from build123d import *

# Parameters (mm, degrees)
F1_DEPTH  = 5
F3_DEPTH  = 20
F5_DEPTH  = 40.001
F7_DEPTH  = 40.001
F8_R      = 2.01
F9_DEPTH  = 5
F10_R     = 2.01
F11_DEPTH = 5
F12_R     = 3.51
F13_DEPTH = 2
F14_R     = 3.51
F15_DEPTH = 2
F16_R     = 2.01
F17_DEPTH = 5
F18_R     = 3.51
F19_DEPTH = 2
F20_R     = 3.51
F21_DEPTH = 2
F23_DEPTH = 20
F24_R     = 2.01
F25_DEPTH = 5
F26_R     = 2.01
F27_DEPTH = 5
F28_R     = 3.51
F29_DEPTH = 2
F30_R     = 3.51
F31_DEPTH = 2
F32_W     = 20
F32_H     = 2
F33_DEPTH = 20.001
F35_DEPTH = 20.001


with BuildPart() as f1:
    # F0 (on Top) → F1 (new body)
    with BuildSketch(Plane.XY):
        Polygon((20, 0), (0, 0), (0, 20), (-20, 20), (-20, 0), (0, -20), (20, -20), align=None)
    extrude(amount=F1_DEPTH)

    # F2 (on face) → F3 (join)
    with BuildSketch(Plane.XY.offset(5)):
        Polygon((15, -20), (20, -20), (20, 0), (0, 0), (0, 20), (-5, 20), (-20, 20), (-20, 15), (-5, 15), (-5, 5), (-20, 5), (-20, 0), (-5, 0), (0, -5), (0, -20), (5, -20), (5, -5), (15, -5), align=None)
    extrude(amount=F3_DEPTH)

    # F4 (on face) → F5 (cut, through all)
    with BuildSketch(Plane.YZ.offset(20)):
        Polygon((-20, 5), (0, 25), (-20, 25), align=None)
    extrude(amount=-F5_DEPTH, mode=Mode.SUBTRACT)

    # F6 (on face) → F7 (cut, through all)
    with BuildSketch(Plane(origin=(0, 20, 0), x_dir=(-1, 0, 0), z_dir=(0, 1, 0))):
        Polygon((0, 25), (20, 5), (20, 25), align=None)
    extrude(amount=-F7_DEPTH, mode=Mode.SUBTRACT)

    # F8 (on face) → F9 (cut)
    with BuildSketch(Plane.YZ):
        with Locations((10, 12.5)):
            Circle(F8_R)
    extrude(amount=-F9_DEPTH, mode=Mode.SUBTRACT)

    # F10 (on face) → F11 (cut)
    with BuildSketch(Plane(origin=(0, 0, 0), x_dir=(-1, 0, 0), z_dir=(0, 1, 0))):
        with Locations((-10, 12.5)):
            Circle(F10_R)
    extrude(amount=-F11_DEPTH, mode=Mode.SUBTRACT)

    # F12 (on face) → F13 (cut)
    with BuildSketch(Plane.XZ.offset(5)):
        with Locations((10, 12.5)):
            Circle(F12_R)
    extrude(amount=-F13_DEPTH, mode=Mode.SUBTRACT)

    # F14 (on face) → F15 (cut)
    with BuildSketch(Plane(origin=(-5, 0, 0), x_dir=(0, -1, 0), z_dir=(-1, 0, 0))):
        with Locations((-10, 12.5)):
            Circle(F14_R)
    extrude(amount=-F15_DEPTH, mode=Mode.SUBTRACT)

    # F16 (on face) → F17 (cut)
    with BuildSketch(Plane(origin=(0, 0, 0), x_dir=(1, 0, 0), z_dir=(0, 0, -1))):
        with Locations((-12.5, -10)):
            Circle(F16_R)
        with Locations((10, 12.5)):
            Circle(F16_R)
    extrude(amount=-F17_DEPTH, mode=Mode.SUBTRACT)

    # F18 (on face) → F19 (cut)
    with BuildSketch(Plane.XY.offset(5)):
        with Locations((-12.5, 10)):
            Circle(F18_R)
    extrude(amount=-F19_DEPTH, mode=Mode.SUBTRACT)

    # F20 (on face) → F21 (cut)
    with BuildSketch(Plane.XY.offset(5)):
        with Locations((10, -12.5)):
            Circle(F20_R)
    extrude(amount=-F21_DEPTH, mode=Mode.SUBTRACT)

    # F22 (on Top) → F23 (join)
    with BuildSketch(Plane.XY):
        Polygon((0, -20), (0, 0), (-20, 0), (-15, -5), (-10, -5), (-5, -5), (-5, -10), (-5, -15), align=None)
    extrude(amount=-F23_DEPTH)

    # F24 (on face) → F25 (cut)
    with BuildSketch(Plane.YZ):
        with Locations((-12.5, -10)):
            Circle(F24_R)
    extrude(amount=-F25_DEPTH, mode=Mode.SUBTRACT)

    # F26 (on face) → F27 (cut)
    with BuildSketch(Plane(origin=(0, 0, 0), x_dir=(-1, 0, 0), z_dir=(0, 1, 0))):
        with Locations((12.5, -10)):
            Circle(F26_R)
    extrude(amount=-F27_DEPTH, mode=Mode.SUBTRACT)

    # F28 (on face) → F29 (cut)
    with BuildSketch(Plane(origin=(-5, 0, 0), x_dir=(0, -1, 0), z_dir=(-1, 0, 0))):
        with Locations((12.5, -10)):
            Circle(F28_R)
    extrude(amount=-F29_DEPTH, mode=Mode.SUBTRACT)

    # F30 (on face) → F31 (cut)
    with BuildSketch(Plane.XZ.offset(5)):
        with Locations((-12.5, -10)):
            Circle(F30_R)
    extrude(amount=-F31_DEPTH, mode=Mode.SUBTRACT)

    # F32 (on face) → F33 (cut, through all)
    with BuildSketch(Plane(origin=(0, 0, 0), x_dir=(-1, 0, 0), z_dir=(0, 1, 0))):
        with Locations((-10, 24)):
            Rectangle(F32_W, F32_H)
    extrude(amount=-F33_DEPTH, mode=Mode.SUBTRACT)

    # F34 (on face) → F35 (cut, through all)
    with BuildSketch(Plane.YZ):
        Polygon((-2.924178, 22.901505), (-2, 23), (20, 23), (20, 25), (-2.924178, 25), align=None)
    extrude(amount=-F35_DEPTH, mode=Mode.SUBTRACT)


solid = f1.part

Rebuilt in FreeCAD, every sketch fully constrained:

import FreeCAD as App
import Part
import Sketcher

doc = App.newDocument("Part")
params = doc.addObject("Spreadsheet::Sheet", "Params")
for row, (alias, value) in enumerate([
    ("sketch1_width", "20 mm"),
    ("pad1_length", "5 mm"),
    ("sketch2_width", "5 mm"),
    ("sketch2_width2", "20 mm"),
    ("pad2_length", "20 mm"),
    ("sketch3_width", "20 mm"),
    ("sketch4_width", "20 mm"),
    ("sketch5_diameter", "4.02 mm"),
    ("pocket3_length", "5 mm"),
    ("sketch6_diameter", "4.02 mm"),
    ("pocket4_length", "5 mm"),
    ("sketch7_diameter", "7.02 mm"),
    ("pocket5_length", "2 mm"),
    ("sketch8_diameter", "7.02 mm"),
    ("pocket6_length", "2 mm"),
    ("sketch9_diameter", "4.02 mm"),
    ("pocket7_length", "5 mm"),
    ("sketch10_diameter", "7.02 mm"),
    ("pocket8_length", "2 mm"),
    ("sketch11_diameter", "7.02 mm"),
    ("pocket9_length", "2 mm"),
    ("sketch12_width", "20 mm"),
    ("sketch12_width2", "10 mm"),
    ("pad3_length", "20 mm"),
    ("sketch13_diameter", "4.02 mm"),
    ("pocket10_length", "5 mm"),
    ("sketch14_diameter", "4.02 mm"),
    ("pocket11_length", "5 mm"),
    ("sketch15_diameter", "7.02 mm"),
    ("pocket12_length", "2 mm"),
    ("sketch16_diameter", "7.02 mm"),
    ("pocket13_length", "2 mm"),
    ("sketch17_width", "20 mm"),
    ("sketch17_height", "2 mm"),
    ("sketch18_width", "22 mm"),
    ("sketch18_height", "2 mm"),
], start=1):
    params.set(f"A{row}", alias)
    params.set(f"B{row}", "=" + value)
    params.setAlias(f"B{row}", alias)

body = doc.addObject("PartDesign::Body", "Body")

# Sketch on XY plane
sketch1 = body.newObject("Sketcher::SketchObject", "Sketch")
sketch1.AttachmentSupport = (doc.getObject("XY_Plane"), [""])
sketch1.MapMode = "FlatFace"
sketch1.addGeometry([
    Part.LineSegment(App.Vector(20, 0, 0), App.Vector(0, 0, 0)),  # 0
    Part.LineSegment(App.Vector(0, 0, 0), App.Vector(0, 20, 0)),  # 1
    Part.LineSegment(App.Vector(0, 20, 0), App.Vector(-20, 20, 0)),  # 2
    Part.LineSegment(App.Vector(-20, 20, 0), App.Vector(-20, 0, 0)),  # 3
    Part.LineSegment(App.Vector(-20, 0, 0), App.Vector(0, -20, 0)),  # 4
    Part.LineSegment(App.Vector(0, -20, 0), App.Vector(20, -20, 0)),  # 5
    Part.LineSegment(App.Vector(20, -20, 0), App.Vector(20, 0, 0)),  # 6
], False)
sketch1.addConstraint([
    Sketcher.Constraint("Coincident", 0, 2, 1, 1),
    Sketcher.Constraint("Coincident", 1, 2, 2, 1),
    Sketcher.Constraint("Coincident", 2, 2, 3, 1),
    Sketcher.Constraint("Coincident", 3, 2, 4, 1),
    Sketcher.Constraint("Coincident", 4, 2, 5, 1),
    Sketcher.Constraint("Coincident", 5, 2, 6, 1),
    Sketcher.Constraint("Coincident", 6, 2, 0, 1),
    Sketcher.Constraint("Horizontal", 0),
    Sketcher.Constraint("Vertical", 1),
    Sketcher.Constraint("Horizontal", 2),
    Sketcher.Constraint("Vertical", 3),
    Sketcher.Constraint("Horizontal", 5),
    Sketcher.Constraint("Vertical", 6),
    Sketcher.Constraint("Coincident", 0, 2, -1, 1),
    Sketcher.Constraint("Symmetric", 1, 2, 4, 2, -1, 1),
    Sketcher.Constraint("Symmetric", 3, 2, 6, 2, -1, 1),
    Sketcher.Constraint("Equal", 5, 1),
    Sketcher.Constraint("DistanceX", 0, 2, 0, 1, 20.0),
])
sketch1.setExpression("Constraints[17]", "Params.sketch1_width")
pad1 = body.newObject("PartDesign::Pad", "Pad")
pad1.Profile = sketch1
pad1.setExpression("Length", "Params.pad1_length")

# Sketch on XY plane
sketch2 = body.newObject("Sketcher::SketchObject", "Sketch001")
sketch2.AttachmentSupport = (doc.getObject("XY_Plane"), [""])
sketch2.MapMode = "FlatFace"
sketch2.AttachmentOffset = App.Placement(App.Vector(0, 0, 5), App.Rotation())
sketch2.addGeometry([
    Part.LineSegment(App.Vector(15, -20, 0), App.Vector(20, -20, 0)),  # 0
    Part.LineSegment(App.Vector(20, -20, 0), App.Vector(20, 0, 0)),  # 1
    Part.LineSegment(App.Vector(20, 0, 0), App.Vector(0, 0, 0)),  # 2
    Part.LineSegment(App.Vector(0, 0, 0), App.Vector(0, 20, 0)),  # 3
    Part.LineSegment(App.Vector(0, 20, 0), App.Vector(-20, 20, 0)),  # 4
    Part.LineSegment(App.Vector(-20, 20, 0), App.Vector(-20, 15, 0)),  # 5
    Part.LineSegment(App.Vector(-20, 15, 0), App.Vector(-5, 15, 0)),  # 6
    Part.LineSegment(App.Vector(-5, 15, 0), App.Vector(-5, 5, 0)),  # 7
    Part.LineSegment(App.Vector(-5, 5, 0), App.Vector(-20, 5, 0)),  # 8
    Part.LineSegment(App.Vector(-20, 5, 0), App.Vector(-20, 0, 0)),  # 9
    Part.LineSegment(App.Vector(-20, 0, 0), App.Vector(-5, 0, 0)),  # 10
    Part.LineSegment(App.Vector(-5, 0, 0), App.Vector(0, -5, 0)),  # 11
    Part.LineSegment(App.Vector(0, -5, 0), App.Vector(0, -20, 0)),  # 12
    Part.LineSegment(App.Vector(0, -20, 0), App.Vector(5, -20, 0)),  # 13
    Part.LineSegment(App.Vector(5, -20, 0), App.Vector(5, -5, 0)),  # 14
    Part.LineSegment(App.Vector(5, -5, 0), App.Vector(15, -5, 0)),  # 15
    Part.LineSegment(App.Vector(15, -5, 0), App.Vector(15, -20, 0)),  # 16
], False)
sketch2.addConstraint([
    Sketcher.Constraint("Coincident", 0, 2, 1, 1),
    Sketcher.Constraint("Coincident", 1, 2, 2, 1),
    Sketcher.Constraint("Coincident", 2, 2, 3, 1),
    Sketcher.Constraint("Coincident", 3, 2, 4, 1),
    Sketcher.Constraint("Coincident", 4, 2, 5, 1),
    Sketcher.Constraint("Coincident", 5, 2, 6, 1),
    Sketcher.Constraint("Coincident", 6, 2, 7, 1),
    Sketcher.Constraint("Coincident", 7, 2, 8, 1),
    Sketcher.Constraint("Coincident", 8, 2, 9, 1),
    Sketcher.Constraint("Coincident", 9, 2, 10, 1),
    Sketcher.Constraint("Coincident", 10, 2, 11, 1),
    Sketcher.Constraint("Coincident", 11, 2, 12, 1),
    Sketcher.Constraint("Coincident", 12, 2, 13, 1),
    Sketcher.Constraint("Coincident", 13, 2, 14, 1),
    Sketcher.Constraint("Coincident", 14, 2, 15, 1),
    Sketcher.Constraint("Coincident", 15, 2, 16, 1),
    Sketcher.Constraint("Coincident", 16, 2, 0, 1),
    Sketcher.Constraint("Horizontal", 0),
    Sketcher.Constraint("Vertical", 1),
    Sketcher.Constraint("Horizontal", 2),
    Sketcher.Constraint("Vertical", 3),
    Sketcher.Constraint("Horizontal", 4),
    Sketcher.Constraint("Vertical", 5),
    Sketcher.Constraint("Horizontal", 6),
    Sketcher.Constraint("Vertical", 7),
    Sketcher.Constraint("Horizontal", 8),
    Sketcher.Constraint("Vertical", 9),
    Sketcher.Constraint("Horizontal", 10),
    Sketcher.Constraint("Vertical", 12),
    Sketcher.Constraint("Horizontal", 13),
    Sketcher.Constraint("Vertical", 14),
    Sketcher.Constraint("Horizontal", 15),
    Sketcher.Constraint("Vertical", 16),
    Sketcher.Constraint("Coincident", 2, 2, -1, 1),
    Sketcher.Constraint("Symmetric", 0, 2, 4, 2, -1, 1),
    Sketcher.Constraint("Symmetric", 1, 2, 9, 2, -1, 1),
    Sketcher.Constraint("Symmetric", 3, 2, 12, 2, -1, 1),
    Sketcher.Constraint("Symmetric", 7, 2, 14, 2, -1, 1),
    Sketcher.Constraint("Horizontal", 11, 2, 14, 2),
    Sketcher.Constraint("Vertical", 7, 2, 10, 2),
    Sketcher.Constraint("Equal", 0, 13),
    Sketcher.Constraint("Equal", 4, 1),
    Sketcher.Constraint("Equal", 13, 5),
    Sketcher.Constraint("Equal", 15, 7),
    Sketcher.Constraint("DistanceX", 0, 1, 0, 2, 5.0),
    Sketcher.Constraint("DistanceX", 2, 2, 2, 1, 20.0),
])
sketch2.setExpression("Constraints[44]", "Params.sketch2_width")
sketch2.setExpression("Constraints[45]", "Params.sketch2_width2")
pad2 = body.newObject("PartDesign::Pad", "Pad001")
pad2.Profile = sketch2
pad2.setExpression("Length", "Params.pad2_length")

# Sketch on YZ plane
sketch3 = body.newObject("Sketcher::SketchObject", "Sketch002")
sketch3.AttachmentSupport = (doc.getObject("YZ_Plane"), [""])
sketch3.MapMode = "FlatFace"
sketch3.AttachmentOffset = App.Placement(App.Vector(0, 0, 20), App.Rotation())
sketch3.addGeometry([
    Part.LineSegment(App.Vector(-20, 5, 0), App.Vector(0, 25, 0)),
    Part.LineSegment(App.Vector(0, 25, 0), App.Vector(-20, 25, 0)),
    Part.LineSegment(App.Vector(-20, 25, 0), App.Vector(-20, 5, 0)),
], False)
sketch3.addConstraint([
    Sketcher.Constraint("Coincident", 0, 2, 1, 1),
    Sketcher.Constraint("Coincident", 1, 2, 2, 1),
    Sketcher.Constraint("Coincident", 2, 2, 0, 1),
    Sketcher.Constraint("Horizontal", 1),
    Sketcher.Constraint("Vertical", 2),
    Sketcher.Constraint("PointOnObject", 0, 2, -2),
    Sketcher.Constraint("Equal", 1, 2),
    Sketcher.Constraint("DistanceX", 1, 2, 1, 1, 20.0),
    Sketcher.Constraint("DistanceY", -1, 1, 0, 2, 25.0),
])
sketch3.setExpression("Constraints[7]", "Params.sketch3_width")
pocket1 = body.newObject("PartDesign::Pocket", "Pocket")
pocket1.Profile = sketch3
pocket1.Type = "ThroughAll"

# Sketch on XZ plane
sketch4 = body.newObject("Sketcher::SketchObject", "Sketch003")
sketch4.AttachmentSupport = (doc.getObject("XZ_Plane"), [""])
sketch4.MapMode = "FlatFace"
sketch4.AttachmentOffset = App.Placement(App.Vector(0, 0, -20), App.Rotation())
sketch4.addGeometry([
    Part.LineSegment(App.Vector(0, 25, 0), App.Vector(-20, 5, 0)),
    Part.LineSegment(App.Vector(-20, 5, 0), App.Vector(-20, 25, 0)),
    Part.LineSegment(App.Vector(-20, 25, 0), App.Vector(0, 25, 0)),
], False)
sketch4.addConstraint([
    Sketcher.Constraint("Coincident", 0, 2, 1, 1),
    Sketcher.Constraint("Coincident", 1, 2, 2, 1),
    Sketcher.Constraint("Coincident", 2, 2, 0, 1),
    Sketcher.Constraint("Vertical", 1),
    Sketcher.Constraint("Horizontal", 2),
    Sketcher.Constraint("PointOnObject", 2, 2, -2),
    Sketcher.Constraint("Equal", 2, 1),
    Sketcher.Constraint("DistanceX", 2, 1, 2, 2, 20.0),
    Sketcher.Constraint("DistanceY", -1, 1, 0, 2, 5.0),
])
sketch4.setExpression("Constraints[7]", "Params.sketch4_width")
pocket2 = body.newObject("PartDesign::Pocket", "Pocket001")
pocket2.Profile = sketch4
pocket2.Type = "ThroughAll"
pocket2.Reversed = True

# Sketch on YZ plane
sketch5 = body.newObject("Sketcher::SketchObject", "Sketch004")
sketch5.AttachmentSupport = (doc.getObject("YZ_Plane"), [""])
sketch5.MapMode = "FlatFace"
sketch5.addGeometry(Part.Circle(App.Vector(10, 12.5, 0), App.Vector(0, 0, 1), 2.01), False)
sketch5.addConstraint([
    Sketcher.Constraint("Diameter", 0, 4.02),
    Sketcher.Constraint("DistanceX", -1, 1, 0, 3, 10.0),
    Sketcher.Constraint("DistanceY", -1, 1, 0, 3, 12.5),
])
sketch5.setExpression("Constraints[0]", "Params.sketch5_diameter")
pocket3 = body.newObject("PartDesign::Pocket", "Pocket002")
pocket3.Profile = sketch5
pocket3.setExpression("Length", "Params.pocket3_length")

# Sketch on XZ plane
sketch6 = body.newObject("Sketcher::SketchObject", "Sketch005")
sketch6.AttachmentSupport = (doc.getObject("XZ_Plane"), [""])
sketch6.MapMode = "FlatFace"
sketch6.addGeometry(Part.Circle(App.Vector(10, 12.5, 0), App.Vector(0, 0, 1), 2.01), False)
sketch6.addConstraint([
    Sketcher.Constraint("Diameter", 0, 4.02),
    Sketcher.Constraint("DistanceX", -1, 1, 0, 3, 10.0),
    Sketcher.Constraint("DistanceY", -1, 1, 0, 3, 12.5),
])
sketch6.setExpression("Constraints[0]", "Params.sketch6_diameter")
pocket4 = body.newObject("PartDesign::Pocket", "Pocket003")
pocket4.Profile = sketch6
pocket4.setExpression("Length", "Params.pocket4_length")
pocket4.Reversed = True

# Sketch on XZ plane
sketch7 = body.newObject("Sketcher::SketchObject", "Sketch006")
sketch7.AttachmentSupport = (doc.getObject("XZ_Plane"), [""])
sketch7.MapMode = "FlatFace"
sketch7.AttachmentOffset = App.Placement(App.Vector(0, 0, 5), App.Rotation())
sketch7.addGeometry(Part.Circle(App.Vector(10, 12.5, 0), App.Vector(0, 0, 1), 3.51), False)
sketch7.addConstraint([
    Sketcher.Constraint("Diameter", 0, 7.02),
    Sketcher.Constraint("DistanceX", -1, 1, 0, 3, 10.0),
    Sketcher.Constraint("DistanceY", -1, 1, 0, 3, 12.5),
])
sketch7.setExpression("Constraints[0]", "Params.sketch7_diameter")
pocket5 = body.newObject("PartDesign::Pocket", "Pocket004")
pocket5.Profile = sketch7
pocket5.setExpression("Length", "Params.pocket5_length")

# Sketch on YZ plane
sketch8 = body.newObject("Sketcher::SketchObject", "Sketch007")
sketch8.AttachmentSupport = (doc.getObject("YZ_Plane"), [""])
sketch8.MapMode = "FlatFace"
sketch8.AttachmentOffset = App.Placement(App.Vector(0, 0, -5), App.Rotation())
sketch8.addGeometry(Part.Circle(App.Vector(10, 12.5, 0), App.Vector(0, 0, 1), 3.51), False)
sketch8.addConstraint([
    Sketcher.Constraint("Diameter", 0, 7.02),
    Sketcher.Constraint("DistanceX", -1, 1, 0, 3, 10.0),
    Sketcher.Constraint("DistanceY", -1, 1, 0, 3, 12.5),
])
sketch8.setExpression("Constraints[0]", "Params.sketch8_diameter")
pocket6 = body.newObject("PartDesign::Pocket", "Pocket005")
pocket6.Profile = sketch8
pocket6.setExpression("Length", "Params.pocket6_length")
pocket6.Reversed = True

# Sketch on XY plane
sketch9 = body.newObject("Sketcher::SketchObject", "Sketch008")
sketch9.AttachmentSupport = (doc.getObject("XY_Plane"), [""])
sketch9.MapMode = "FlatFace"
sketch9.addGeometry([
    Part.Circle(App.Vector(-12.5, 10, 0), App.Vector(0, 0, 1), 2.01),
    Part.Circle(App.Vector(10, -12.5, 0), App.Vector(0, 0, 1), 2.01),
], False)
sketch9.addConstraint([
    Sketcher.Constraint("Equal", 0, 1),
    Sketcher.Constraint("Diameter", 0, 4.02),
    Sketcher.Constraint("DistanceY", -1, 1, 0, 3, 10.0),
    Sketcher.Constraint("DistanceX", -1, 1, 1, 3, 10.0),
    Sketcher.Constraint("DistanceX", 0, 3, -1, 1, 12.5),
    Sketcher.Constraint("DistanceY", 1, 3, -1, 1, 12.5),
])
sketch9.setExpression("Constraints[1]", "Params.sketch9_diameter")
pocket7 = body.newObject("PartDesign::Pocket", "Pocket006")
pocket7.Profile = sketch9
pocket7.setExpression("Length", "Params.pocket7_length")
pocket7.Reversed = True

# Sketch on XY plane
sketch10 = body.newObject("Sketcher::SketchObject", "Sketch009")
sketch10.AttachmentSupport = (doc.getObject("XY_Plane"), [""])
sketch10.MapMode = "FlatFace"
sketch10.AttachmentOffset = App.Placement(App.Vector(0, 0, 5), App.Rotation())
sketch10.addGeometry(Part.Circle(App.Vector(-12.5, 10, 0), App.Vector(0, 0, 1), 3.51), False)
sketch10.addConstraint([
    Sketcher.Constraint("Diameter", 0, 7.02),
    Sketcher.Constraint("DistanceY", -1, 1, 0, 3, 10.0),
    Sketcher.Constraint("DistanceX", 0, 3, -1, 1, 12.5),
])
sketch10.setExpression("Constraints[0]", "Params.sketch10_diameter")
pocket8 = body.newObject("PartDesign::Pocket", "Pocket007")
pocket8.Profile = sketch10
pocket8.setExpression("Length", "Params.pocket8_length")

# Sketch on XY plane
sketch11 = body.newObject("Sketcher::SketchObject", "Sketch010")
sketch11.AttachmentSupport = (doc.getObject("XY_Plane"), [""])
sketch11.MapMode = "FlatFace"
sketch11.AttachmentOffset = App.Placement(App.Vector(0, 0, 5), App.Rotation())
sketch11.addGeometry(Part.Circle(App.Vector(10, -12.5, 0), App.Vector(0, 0, 1), 3.51), False)
sketch11.addConstraint([
    Sketcher.Constraint("Diameter", 0, 7.02),
    Sketcher.Constraint("DistanceX", -1, 1, 0, 3, 10.0),
    Sketcher.Constraint("DistanceY", 0, 3, -1, 1, 12.5),
])
sketch11.setExpression("Constraints[0]", "Params.sketch11_diameter")
pocket9 = body.newObject("PartDesign::Pocket", "Pocket008")
pocket9.Profile = sketch11
pocket9.setExpression("Length", "Params.pocket9_length")

# Sketch on XY plane
sketch12 = body.newObject("Sketcher::SketchObject", "Sketch011")
sketch12.AttachmentSupport = (doc.getObject("XY_Plane"), [""])
sketch12.MapMode = "FlatFace"
sketch12.addGeometry([
    Part.LineSegment(App.Vector(0, -20, 0), App.Vector(0, 0, 0)),  # 0
    Part.LineSegment(App.Vector(0, 0, 0), App.Vector(-20, 0, 0)),  # 1
    Part.LineSegment(App.Vector(-20, 0, 0), App.Vector(-15, -5, 0)),  # 2
    Part.LineSegment(App.Vector(-15, -5, 0), App.Vector(-5, -5, 0)),  # 3
    Part.LineSegment(App.Vector(-5, -5, 0), App.Vector(-5, -15, 0)),  # 4
    Part.LineSegment(App.Vector(-5, -15, 0), App.Vector(0, -20, 0)),  # 5
], False)
sketch12.addConstraint([
    Sketcher.Constraint("Coincident", 0, 2, 1, 1),
    Sketcher.Constraint("Coincident", 1, 2, 2, 1),
    Sketcher.Constraint("Coincident", 2, 2, 3, 1),
    Sketcher.Constraint("Coincident", 3, 2, 4, 1),
    Sketcher.Constraint("Coincident", 4, 2, 5, 1),
    Sketcher.Constraint("Coincident", 5, 2, 0, 1),
    Sketcher.Constraint("Vertical", 0),
    Sketcher.Constraint("Horizontal", 1),
    Sketcher.Constraint("Horizontal", 3),
    Sketcher.Constraint("Vertical", 4),
    Sketcher.Constraint("Coincident", 0, 2, -1, 1),
    Sketcher.Constraint("Parallel", 2, 5),
    Sketcher.Constraint("Equal", 1, 0),
    Sketcher.Constraint("Equal", 3, 4),
    Sketcher.Constraint("Equal", 2, 5),
    Sketcher.Constraint("DistanceX", 1, 2, 1, 1, 20.0),
    Sketcher.Constraint("DistanceX", 3, 1, 3, 2, 10.0),
])
sketch12.setExpression("Constraints[15]", "Params.sketch12_width")
sketch12.setExpression("Constraints[16]", "Params.sketch12_width2")
pad3 = body.newObject("PartDesign::Pad", "Pad002")
pad3.Profile = sketch12
pad3.setExpression("Length", "Params.pad3_length")
pad3.Reversed = True

# Sketch on YZ plane
sketch13 = body.newObject("Sketcher::SketchObject", "Sketch012")
sketch13.AttachmentSupport = (doc.getObject("YZ_Plane"), [""])
sketch13.MapMode = "FlatFace"
sketch13.addGeometry(Part.Circle(App.Vector(-12.5, -10, 0), App.Vector(0, 0, 1), 2.01), False)
sketch13.addConstraint([
    Sketcher.Constraint("Diameter", 0, 4.02),
    Sketcher.Constraint("DistanceY", 0, 3, -1, 1, 10.0),
    Sketcher.Constraint("DistanceX", 0, 3, -1, 1, 12.5),
])
sketch13.setExpression("Constraints[0]", "Params.sketch13_diameter")
pocket10 = body.newObject("PartDesign::Pocket", "Pocket009")
pocket10.Profile = sketch13
pocket10.setExpression("Length", "Params.pocket10_length")

# Sketch on XZ plane
sketch14 = body.newObject("Sketcher::SketchObject", "Sketch013")
sketch14.AttachmentSupport = (doc.getObject("XZ_Plane"), [""])
sketch14.MapMode = "FlatFace"
sketch14.addGeometry(Part.Circle(App.Vector(-12.5, -10, 0), App.Vector(0, 0, 1), 2.01), False)
sketch14.addConstraint([
    Sketcher.Constraint("Diameter", 0, 4.02),
    Sketcher.Constraint("DistanceY", 0, 3, -1, 1, 10.0),
    Sketcher.Constraint("DistanceX", 0, 3, -1, 1, 12.5),
])
sketch14.setExpression("Constraints[0]", "Params.sketch14_diameter")
pocket11 = body.newObject("PartDesign::Pocket", "Pocket010")
pocket11.Profile = sketch14
pocket11.setExpression("Length", "Params.pocket11_length")
pocket11.Reversed = True

# Sketch on YZ plane
sketch15 = body.newObject("Sketcher::SketchObject", "Sketch014")
sketch15.AttachmentSupport = (doc.getObject("YZ_Plane"), [""])
sketch15.MapMode = "FlatFace"
sketch15.AttachmentOffset = App.Placement(App.Vector(0, 0, -5), App.Rotation())
sketch15.addGeometry(Part.Circle(App.Vector(-12.5, -10, 0), App.Vector(0, 0, 1), 3.51), False)
sketch15.addConstraint([
    Sketcher.Constraint("Diameter", 0, 7.02),
    Sketcher.Constraint("DistanceY", 0, 3, -1, 1, 10.0),
    Sketcher.Constraint("DistanceX", 0, 3, -1, 1, 12.5),
])
sketch15.setExpression("Constraints[0]", "Params.sketch15_diameter")
pocket12 = body.newObject("PartDesign::Pocket", "Pocket011")
pocket12.Profile = sketch15
pocket12.setExpression("Length", "Params.pocket12_length")
pocket12.Reversed = True

# Sketch on XZ plane
sketch16 = body.newObject("Sketcher::SketchObject", "Sketch015")
sketch16.AttachmentSupport = (doc.getObject("XZ_Plane"), [""])
sketch16.MapMode = "FlatFace"
sketch16.AttachmentOffset = App.Placement(App.Vector(0, 0, 5), App.Rotation())
sketch16.addGeometry(Part.Circle(App.Vector(-12.5, -10, 0), App.Vector(0, 0, 1), 3.51), False)
sketch16.addConstraint([
    Sketcher.Constraint("Diameter", 0, 7.02),
    Sketcher.Constraint("DistanceY", 0, 3, -1, 1, 10.0),
    Sketcher.Constraint("DistanceX", 0, 3, -1, 1, 12.5),
])
sketch16.setExpression("Constraints[0]", "Params.sketch16_diameter")
pocket13 = body.newObject("PartDesign::Pocket", "Pocket012")
pocket13.Profile = sketch16
pocket13.setExpression("Length", "Params.pocket13_length")

# Sketch on XZ plane
sketch17 = body.newObject("Sketcher::SketchObject", "Sketch016")
sketch17.AttachmentSupport = (doc.getObject("XZ_Plane"), [""])
sketch17.MapMode = "FlatFace"
sketch17.addGeometry([
    Part.LineSegment(App.Vector(20, 25, 0), App.Vector(20, 23, 0)),
    Part.LineSegment(App.Vector(20, 23, 0), App.Vector(0, 23, 0)),
    Part.LineSegment(App.Vector(0, 23, 0), App.Vector(0, 25, 0)),
    Part.LineSegment(App.Vector(0, 25, 0), App.Vector(20, 25, 0)),
], False)
sketch17.addConstraint([
    Sketcher.Constraint("Coincident", 0, 2, 1, 1),
    Sketcher.Constraint("Coincident", 1, 2, 2, 1),
    Sketcher.Constraint("Coincident", 2, 2, 3, 1),
    Sketcher.Constraint("Coincident", 3, 2, 0, 1),
    Sketcher.Constraint("Vertical", 0),
    Sketcher.Constraint("Horizontal", 1),
    Sketcher.Constraint("Vertical", 2),
    Sketcher.Constraint("Horizontal", 3),
    Sketcher.Constraint("PointOnObject", 1, 2, -2),
    Sketcher.Constraint("DistanceX", 1, 2, 1, 1, 20.0),
    Sketcher.Constraint("DistanceY", 0, 2, 0, 1, 2.0),
    Sketcher.Constraint("DistanceY", -1, 1, 0, 2, 23.0),
])
sketch17.setExpression("Constraints[9]", "Params.sketch17_width")
sketch17.setExpression("Constraints[10]", "Params.sketch17_height")
pocket14 = body.newObject("PartDesign::Pocket", "Pocket013")
pocket14.Profile = sketch17
pocket14.Type = "ThroughAll"
pocket14.Reversed = True

# Sketch on YZ plane
sketch18 = body.newObject("Sketcher::SketchObject", "Sketch017")
sketch18.AttachmentSupport = (doc.getObject("YZ_Plane"), [""])
sketch18.MapMode = "FlatFace"
sketch18.addGeometry([
    Part.LineSegment(App.Vector(-2.924178, 22.901505, 0), App.Vector(-2, 23, 0)),  # 0
    Part.LineSegment(App.Vector(-2, 23, 0), App.Vector(20, 23, 0)),  # 1
    Part.LineSegment(App.Vector(20, 23, 0), App.Vector(20, 25, 0)),  # 2
    Part.LineSegment(App.Vector(20, 25, 0), App.Vector(-2.924178, 25, 0)),  # 3
    Part.LineSegment(App.Vector(-2.924178, 25, 0), App.Vector(-2.924178, 22.901505, 0)),  # 4
], False)
sketch18.addConstraint([
    Sketcher.Constraint("Coincident", 0, 2, 1, 1),
    Sketcher.Constraint("Coincident", 1, 2, 2, 1),
    Sketcher.Constraint("Coincident", 2, 2, 3, 1),
    Sketcher.Constraint("Coincident", 3, 2, 4, 1),
    Sketcher.Constraint("Coincident", 4, 2, 0, 1),
    Sketcher.Constraint("Horizontal", 1),
    Sketcher.Constraint("Vertical", 2),
    Sketcher.Constraint("Horizontal", 3),
    Sketcher.Constraint("Vertical", 4),
    Sketcher.Constraint("DistanceX", 1, 1, 1, 2, 22.0),
    Sketcher.Constraint("DistanceY", 2, 1, 2, 2, 2.0),
    Sketcher.Constraint("DistanceX", 0, 2, -1, 1, 2.0),
    Sketcher.Constraint("DistanceY", -1, 1, 0, 2, 23.0),
    Sketcher.Constraint("DistanceX", 3, 2, 3, 1, 22.924178),
    Sketcher.Constraint("Distance", 0, 0.929412),
])
sketch18.setExpression("Constraints[9]", "Params.sketch18_width")
sketch18.setExpression("Constraints[10]", "Params.sketch18_height")
pocket15 = body.newObject("PartDesign::Pocket", "Pocket014")
pocket15.Profile = sketch18
pocket15.Type = "ThroughAll"

doc.recompute()
